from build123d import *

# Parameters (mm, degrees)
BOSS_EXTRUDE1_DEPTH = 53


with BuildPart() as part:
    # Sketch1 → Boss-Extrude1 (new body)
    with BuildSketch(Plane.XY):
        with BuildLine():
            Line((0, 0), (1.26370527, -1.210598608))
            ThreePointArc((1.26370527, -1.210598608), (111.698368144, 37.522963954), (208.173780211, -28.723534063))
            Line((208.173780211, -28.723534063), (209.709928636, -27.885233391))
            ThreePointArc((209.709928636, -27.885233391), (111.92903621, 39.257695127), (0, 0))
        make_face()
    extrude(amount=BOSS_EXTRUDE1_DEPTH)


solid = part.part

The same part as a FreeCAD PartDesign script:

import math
import FreeCAD as App
import Part
import Sketcher

doc = App.newDocument("Part")
body = doc.addObject("PartDesign::Body", "Body")

# Sketch on XY plane
sketch1 = doc.addObject("Sketcher::SketchObject", "Sketch")
body.addObject(sketch1)
sketch1.AttachmentSupport = (doc.XY_Plane, [""])
sketch1.MapMode = "FlatFace"
sketch1.addGeometry(Part.LineSegment(App.Vector(0, 0, 0), App.Vector(1.3, -1.2, 0)), False)
sketch1.addGeometry(Part.ArcOfCircle(Part.Circle(App.Vector(94.7, -90.7, 0), App.Vector(0, 0, 1), 129.3), math.radians(29), math.radians(136)), False)
sketch1.addGeometry(Part.LineSegment(App.Vector(208.2, -28.7, 0), App.Vector(209.7, -27.9, 0)), False)
sketch1.addGeometry(Part.ArcOfCircle(Part.Circle(App.Vector(94.7, -90.7, 0), App.Vector(0, 0, 1), 131.1), math.radians(29), math.radians(136)), False)
sketch1.addConstraint(Sketcher.Constraint("Coincident", 0, 2, 1, 2))
sketch1.addConstraint(Sketcher.Constraint("Coincident", 1, 1, 2, 1))
sketch1.addConstraint(Sketcher.Constraint("Coincident", 2, 2, 3, 1))
sketch1.addConstraint(Sketcher.Constraint("Coincident", 3, 2, 0, 1))
sketch1.addConstraint(Sketcher.Constraint("Coincident", 3, 2, -1, 1))
sketch1.addConstraint(Sketcher.Constraint("Coincident", 3, 3, 1, 3))
sketch1.addConstraint(Sketcher.Constraint("Distance", 0, 1.75))
sketch1.addConstraint(Sketcher.Constraint("Radius", 1, 129.325554))
sketch1.addConstraint(Sketcher.Constraint("DistanceY", 0, 2, -1, 1, 1.210599))
sketch1.addConstraint(Sketcher.Constraint("DistanceY", 1, 1, 2, 2, 0.838301))
sketch1.addConstraint(Sketcher.Constraint("DistanceY", 1, 3, -1, 1, 90.674219))
sketch1.addConstraint(Sketcher.Constraint("DistanceX", -1, 1, 1, 1, 208.17378))
pad1 = doc.addObject("PartDesign::Pad", "Pad")
body.addObject(pad1)
pad1.Profile = sketch1
pad1.Length = 53

doc.recompute()
